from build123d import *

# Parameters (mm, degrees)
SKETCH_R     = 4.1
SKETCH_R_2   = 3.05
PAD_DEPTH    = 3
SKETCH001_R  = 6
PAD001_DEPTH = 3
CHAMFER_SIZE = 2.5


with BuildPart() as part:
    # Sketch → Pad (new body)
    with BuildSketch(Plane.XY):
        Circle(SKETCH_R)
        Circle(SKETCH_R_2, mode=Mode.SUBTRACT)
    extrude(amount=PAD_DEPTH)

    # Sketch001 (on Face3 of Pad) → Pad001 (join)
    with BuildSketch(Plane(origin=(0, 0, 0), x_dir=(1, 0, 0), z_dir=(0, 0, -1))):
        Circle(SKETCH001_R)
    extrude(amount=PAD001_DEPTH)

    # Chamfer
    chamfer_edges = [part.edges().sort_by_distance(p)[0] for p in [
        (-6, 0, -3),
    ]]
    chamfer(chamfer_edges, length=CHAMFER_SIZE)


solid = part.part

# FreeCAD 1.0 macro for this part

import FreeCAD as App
import Part
import Sketcher

V = App.Vector


def edges_at(feature, points):
    """Names of the edges that pass closest to the given points."""
    edges = feature.Shape.Edges
    near = lambda p: min(range(len(edges)), key=lambda i: edges[i].distToShape(Part.Vertex(*p))[0])
    return sorted({f"Edge{near(p) + 1}" for p in points})

doc = App.newDocument("Part")
params = doc.addObject("Spreadsheet::Sheet", "Params")
for row, (alias, value) in enumerate([
    ("sketch1_diameter", "8.2 mm"),
    ("sketch1_diameter2", "6.1 mm"),
    ("pad1_length", "3 mm"),
    ("sketch2_diameter", "12 mm"),
    ("pad2_length", "3 mm"),
    ("chamfer_size", "2.5 mm"),
], start=1):
    params.set(f"A{row}", alias)
    params.set(f"B{row}", "=" + value)
    params.setAlias(f"B{row}", alias)

body = doc.addObject("PartDesign::Body", "Body")

# Sketch on XY plane
sketch1 = body.newObject("Sketcher::SketchObject", "Sketch")
sketch1.AttachmentSupport = (doc.getObject("XY_Plane"), [""])
sketch1.MapMode = "FlatFace"
sketch1.addGeometry(Part.Circle(V(0, 0, 0), V(0, 0, 1), 4.1), False)
sketch1.addGeometry(Part.Circle(V(0, 0, 0), V(0, 0, 1), 3), False)
sketch1.addConstraint(Sketcher.Constraint("Coincident", 0, 3, -1, 1))
sketch1.addConstraint(Sketcher.Constraint("Coincident", 1, 3, -1, 1))
sketch1.addConstraint(Sketcher.Constraint("Diameter", 0, 8.2))
sketch1.addConstraint(Sketcher.Constraint("Diameter", 1, 6.1))
sketch1.setExpression("Constraints[2]", "Params.sketch1_diameter")
sketch1.setExpression("Constraints[3]", "Params.sketch1_diameter2")
pad1 = body.newObject("PartDesign::Pad", "Pad")
pad1.Profile = sketch1
pad1.setExpression("Length", "Params.pad1_length")

# Sketch on XY plane
sketch2 = body.newObject("Sketcher::SketchObject", "Sketch001")
sketch2.AttachmentSupport = (doc.getObject("XY_Plane"), [""])
sketch2.MapMode = "FlatFace"
sketch2.addGeometry(Part.Circle(V(0, 0, 0), V(0, 0, 1), 6), False)
sketch2.addConstraint(Sketcher.Constraint("Coincident", 0, 3, -1, 1))
sketch2.addConstraint(Sketcher.Constraint("Diameter", 0, 12.0))
sketch2.setExpression("Constraints[1]", "Params.sketch2_diameter")
pad2 = body.newObject("PartDesign::Pad", "Pad001")
pad2.Profile = sketch2
pad2.setExpression("Length", "Params.pad2_length")
pad2.Reversed = True
doc.recompute()

chamfer = body.newObject("PartDesign::Chamfer", "Chamfer")
chamfer.Base = (pad2, edges_at(pad2, [(-6, 0, -3)]))
chamfer.setExpression("Size", "Params.chamfer_size")

doc.recompute()
